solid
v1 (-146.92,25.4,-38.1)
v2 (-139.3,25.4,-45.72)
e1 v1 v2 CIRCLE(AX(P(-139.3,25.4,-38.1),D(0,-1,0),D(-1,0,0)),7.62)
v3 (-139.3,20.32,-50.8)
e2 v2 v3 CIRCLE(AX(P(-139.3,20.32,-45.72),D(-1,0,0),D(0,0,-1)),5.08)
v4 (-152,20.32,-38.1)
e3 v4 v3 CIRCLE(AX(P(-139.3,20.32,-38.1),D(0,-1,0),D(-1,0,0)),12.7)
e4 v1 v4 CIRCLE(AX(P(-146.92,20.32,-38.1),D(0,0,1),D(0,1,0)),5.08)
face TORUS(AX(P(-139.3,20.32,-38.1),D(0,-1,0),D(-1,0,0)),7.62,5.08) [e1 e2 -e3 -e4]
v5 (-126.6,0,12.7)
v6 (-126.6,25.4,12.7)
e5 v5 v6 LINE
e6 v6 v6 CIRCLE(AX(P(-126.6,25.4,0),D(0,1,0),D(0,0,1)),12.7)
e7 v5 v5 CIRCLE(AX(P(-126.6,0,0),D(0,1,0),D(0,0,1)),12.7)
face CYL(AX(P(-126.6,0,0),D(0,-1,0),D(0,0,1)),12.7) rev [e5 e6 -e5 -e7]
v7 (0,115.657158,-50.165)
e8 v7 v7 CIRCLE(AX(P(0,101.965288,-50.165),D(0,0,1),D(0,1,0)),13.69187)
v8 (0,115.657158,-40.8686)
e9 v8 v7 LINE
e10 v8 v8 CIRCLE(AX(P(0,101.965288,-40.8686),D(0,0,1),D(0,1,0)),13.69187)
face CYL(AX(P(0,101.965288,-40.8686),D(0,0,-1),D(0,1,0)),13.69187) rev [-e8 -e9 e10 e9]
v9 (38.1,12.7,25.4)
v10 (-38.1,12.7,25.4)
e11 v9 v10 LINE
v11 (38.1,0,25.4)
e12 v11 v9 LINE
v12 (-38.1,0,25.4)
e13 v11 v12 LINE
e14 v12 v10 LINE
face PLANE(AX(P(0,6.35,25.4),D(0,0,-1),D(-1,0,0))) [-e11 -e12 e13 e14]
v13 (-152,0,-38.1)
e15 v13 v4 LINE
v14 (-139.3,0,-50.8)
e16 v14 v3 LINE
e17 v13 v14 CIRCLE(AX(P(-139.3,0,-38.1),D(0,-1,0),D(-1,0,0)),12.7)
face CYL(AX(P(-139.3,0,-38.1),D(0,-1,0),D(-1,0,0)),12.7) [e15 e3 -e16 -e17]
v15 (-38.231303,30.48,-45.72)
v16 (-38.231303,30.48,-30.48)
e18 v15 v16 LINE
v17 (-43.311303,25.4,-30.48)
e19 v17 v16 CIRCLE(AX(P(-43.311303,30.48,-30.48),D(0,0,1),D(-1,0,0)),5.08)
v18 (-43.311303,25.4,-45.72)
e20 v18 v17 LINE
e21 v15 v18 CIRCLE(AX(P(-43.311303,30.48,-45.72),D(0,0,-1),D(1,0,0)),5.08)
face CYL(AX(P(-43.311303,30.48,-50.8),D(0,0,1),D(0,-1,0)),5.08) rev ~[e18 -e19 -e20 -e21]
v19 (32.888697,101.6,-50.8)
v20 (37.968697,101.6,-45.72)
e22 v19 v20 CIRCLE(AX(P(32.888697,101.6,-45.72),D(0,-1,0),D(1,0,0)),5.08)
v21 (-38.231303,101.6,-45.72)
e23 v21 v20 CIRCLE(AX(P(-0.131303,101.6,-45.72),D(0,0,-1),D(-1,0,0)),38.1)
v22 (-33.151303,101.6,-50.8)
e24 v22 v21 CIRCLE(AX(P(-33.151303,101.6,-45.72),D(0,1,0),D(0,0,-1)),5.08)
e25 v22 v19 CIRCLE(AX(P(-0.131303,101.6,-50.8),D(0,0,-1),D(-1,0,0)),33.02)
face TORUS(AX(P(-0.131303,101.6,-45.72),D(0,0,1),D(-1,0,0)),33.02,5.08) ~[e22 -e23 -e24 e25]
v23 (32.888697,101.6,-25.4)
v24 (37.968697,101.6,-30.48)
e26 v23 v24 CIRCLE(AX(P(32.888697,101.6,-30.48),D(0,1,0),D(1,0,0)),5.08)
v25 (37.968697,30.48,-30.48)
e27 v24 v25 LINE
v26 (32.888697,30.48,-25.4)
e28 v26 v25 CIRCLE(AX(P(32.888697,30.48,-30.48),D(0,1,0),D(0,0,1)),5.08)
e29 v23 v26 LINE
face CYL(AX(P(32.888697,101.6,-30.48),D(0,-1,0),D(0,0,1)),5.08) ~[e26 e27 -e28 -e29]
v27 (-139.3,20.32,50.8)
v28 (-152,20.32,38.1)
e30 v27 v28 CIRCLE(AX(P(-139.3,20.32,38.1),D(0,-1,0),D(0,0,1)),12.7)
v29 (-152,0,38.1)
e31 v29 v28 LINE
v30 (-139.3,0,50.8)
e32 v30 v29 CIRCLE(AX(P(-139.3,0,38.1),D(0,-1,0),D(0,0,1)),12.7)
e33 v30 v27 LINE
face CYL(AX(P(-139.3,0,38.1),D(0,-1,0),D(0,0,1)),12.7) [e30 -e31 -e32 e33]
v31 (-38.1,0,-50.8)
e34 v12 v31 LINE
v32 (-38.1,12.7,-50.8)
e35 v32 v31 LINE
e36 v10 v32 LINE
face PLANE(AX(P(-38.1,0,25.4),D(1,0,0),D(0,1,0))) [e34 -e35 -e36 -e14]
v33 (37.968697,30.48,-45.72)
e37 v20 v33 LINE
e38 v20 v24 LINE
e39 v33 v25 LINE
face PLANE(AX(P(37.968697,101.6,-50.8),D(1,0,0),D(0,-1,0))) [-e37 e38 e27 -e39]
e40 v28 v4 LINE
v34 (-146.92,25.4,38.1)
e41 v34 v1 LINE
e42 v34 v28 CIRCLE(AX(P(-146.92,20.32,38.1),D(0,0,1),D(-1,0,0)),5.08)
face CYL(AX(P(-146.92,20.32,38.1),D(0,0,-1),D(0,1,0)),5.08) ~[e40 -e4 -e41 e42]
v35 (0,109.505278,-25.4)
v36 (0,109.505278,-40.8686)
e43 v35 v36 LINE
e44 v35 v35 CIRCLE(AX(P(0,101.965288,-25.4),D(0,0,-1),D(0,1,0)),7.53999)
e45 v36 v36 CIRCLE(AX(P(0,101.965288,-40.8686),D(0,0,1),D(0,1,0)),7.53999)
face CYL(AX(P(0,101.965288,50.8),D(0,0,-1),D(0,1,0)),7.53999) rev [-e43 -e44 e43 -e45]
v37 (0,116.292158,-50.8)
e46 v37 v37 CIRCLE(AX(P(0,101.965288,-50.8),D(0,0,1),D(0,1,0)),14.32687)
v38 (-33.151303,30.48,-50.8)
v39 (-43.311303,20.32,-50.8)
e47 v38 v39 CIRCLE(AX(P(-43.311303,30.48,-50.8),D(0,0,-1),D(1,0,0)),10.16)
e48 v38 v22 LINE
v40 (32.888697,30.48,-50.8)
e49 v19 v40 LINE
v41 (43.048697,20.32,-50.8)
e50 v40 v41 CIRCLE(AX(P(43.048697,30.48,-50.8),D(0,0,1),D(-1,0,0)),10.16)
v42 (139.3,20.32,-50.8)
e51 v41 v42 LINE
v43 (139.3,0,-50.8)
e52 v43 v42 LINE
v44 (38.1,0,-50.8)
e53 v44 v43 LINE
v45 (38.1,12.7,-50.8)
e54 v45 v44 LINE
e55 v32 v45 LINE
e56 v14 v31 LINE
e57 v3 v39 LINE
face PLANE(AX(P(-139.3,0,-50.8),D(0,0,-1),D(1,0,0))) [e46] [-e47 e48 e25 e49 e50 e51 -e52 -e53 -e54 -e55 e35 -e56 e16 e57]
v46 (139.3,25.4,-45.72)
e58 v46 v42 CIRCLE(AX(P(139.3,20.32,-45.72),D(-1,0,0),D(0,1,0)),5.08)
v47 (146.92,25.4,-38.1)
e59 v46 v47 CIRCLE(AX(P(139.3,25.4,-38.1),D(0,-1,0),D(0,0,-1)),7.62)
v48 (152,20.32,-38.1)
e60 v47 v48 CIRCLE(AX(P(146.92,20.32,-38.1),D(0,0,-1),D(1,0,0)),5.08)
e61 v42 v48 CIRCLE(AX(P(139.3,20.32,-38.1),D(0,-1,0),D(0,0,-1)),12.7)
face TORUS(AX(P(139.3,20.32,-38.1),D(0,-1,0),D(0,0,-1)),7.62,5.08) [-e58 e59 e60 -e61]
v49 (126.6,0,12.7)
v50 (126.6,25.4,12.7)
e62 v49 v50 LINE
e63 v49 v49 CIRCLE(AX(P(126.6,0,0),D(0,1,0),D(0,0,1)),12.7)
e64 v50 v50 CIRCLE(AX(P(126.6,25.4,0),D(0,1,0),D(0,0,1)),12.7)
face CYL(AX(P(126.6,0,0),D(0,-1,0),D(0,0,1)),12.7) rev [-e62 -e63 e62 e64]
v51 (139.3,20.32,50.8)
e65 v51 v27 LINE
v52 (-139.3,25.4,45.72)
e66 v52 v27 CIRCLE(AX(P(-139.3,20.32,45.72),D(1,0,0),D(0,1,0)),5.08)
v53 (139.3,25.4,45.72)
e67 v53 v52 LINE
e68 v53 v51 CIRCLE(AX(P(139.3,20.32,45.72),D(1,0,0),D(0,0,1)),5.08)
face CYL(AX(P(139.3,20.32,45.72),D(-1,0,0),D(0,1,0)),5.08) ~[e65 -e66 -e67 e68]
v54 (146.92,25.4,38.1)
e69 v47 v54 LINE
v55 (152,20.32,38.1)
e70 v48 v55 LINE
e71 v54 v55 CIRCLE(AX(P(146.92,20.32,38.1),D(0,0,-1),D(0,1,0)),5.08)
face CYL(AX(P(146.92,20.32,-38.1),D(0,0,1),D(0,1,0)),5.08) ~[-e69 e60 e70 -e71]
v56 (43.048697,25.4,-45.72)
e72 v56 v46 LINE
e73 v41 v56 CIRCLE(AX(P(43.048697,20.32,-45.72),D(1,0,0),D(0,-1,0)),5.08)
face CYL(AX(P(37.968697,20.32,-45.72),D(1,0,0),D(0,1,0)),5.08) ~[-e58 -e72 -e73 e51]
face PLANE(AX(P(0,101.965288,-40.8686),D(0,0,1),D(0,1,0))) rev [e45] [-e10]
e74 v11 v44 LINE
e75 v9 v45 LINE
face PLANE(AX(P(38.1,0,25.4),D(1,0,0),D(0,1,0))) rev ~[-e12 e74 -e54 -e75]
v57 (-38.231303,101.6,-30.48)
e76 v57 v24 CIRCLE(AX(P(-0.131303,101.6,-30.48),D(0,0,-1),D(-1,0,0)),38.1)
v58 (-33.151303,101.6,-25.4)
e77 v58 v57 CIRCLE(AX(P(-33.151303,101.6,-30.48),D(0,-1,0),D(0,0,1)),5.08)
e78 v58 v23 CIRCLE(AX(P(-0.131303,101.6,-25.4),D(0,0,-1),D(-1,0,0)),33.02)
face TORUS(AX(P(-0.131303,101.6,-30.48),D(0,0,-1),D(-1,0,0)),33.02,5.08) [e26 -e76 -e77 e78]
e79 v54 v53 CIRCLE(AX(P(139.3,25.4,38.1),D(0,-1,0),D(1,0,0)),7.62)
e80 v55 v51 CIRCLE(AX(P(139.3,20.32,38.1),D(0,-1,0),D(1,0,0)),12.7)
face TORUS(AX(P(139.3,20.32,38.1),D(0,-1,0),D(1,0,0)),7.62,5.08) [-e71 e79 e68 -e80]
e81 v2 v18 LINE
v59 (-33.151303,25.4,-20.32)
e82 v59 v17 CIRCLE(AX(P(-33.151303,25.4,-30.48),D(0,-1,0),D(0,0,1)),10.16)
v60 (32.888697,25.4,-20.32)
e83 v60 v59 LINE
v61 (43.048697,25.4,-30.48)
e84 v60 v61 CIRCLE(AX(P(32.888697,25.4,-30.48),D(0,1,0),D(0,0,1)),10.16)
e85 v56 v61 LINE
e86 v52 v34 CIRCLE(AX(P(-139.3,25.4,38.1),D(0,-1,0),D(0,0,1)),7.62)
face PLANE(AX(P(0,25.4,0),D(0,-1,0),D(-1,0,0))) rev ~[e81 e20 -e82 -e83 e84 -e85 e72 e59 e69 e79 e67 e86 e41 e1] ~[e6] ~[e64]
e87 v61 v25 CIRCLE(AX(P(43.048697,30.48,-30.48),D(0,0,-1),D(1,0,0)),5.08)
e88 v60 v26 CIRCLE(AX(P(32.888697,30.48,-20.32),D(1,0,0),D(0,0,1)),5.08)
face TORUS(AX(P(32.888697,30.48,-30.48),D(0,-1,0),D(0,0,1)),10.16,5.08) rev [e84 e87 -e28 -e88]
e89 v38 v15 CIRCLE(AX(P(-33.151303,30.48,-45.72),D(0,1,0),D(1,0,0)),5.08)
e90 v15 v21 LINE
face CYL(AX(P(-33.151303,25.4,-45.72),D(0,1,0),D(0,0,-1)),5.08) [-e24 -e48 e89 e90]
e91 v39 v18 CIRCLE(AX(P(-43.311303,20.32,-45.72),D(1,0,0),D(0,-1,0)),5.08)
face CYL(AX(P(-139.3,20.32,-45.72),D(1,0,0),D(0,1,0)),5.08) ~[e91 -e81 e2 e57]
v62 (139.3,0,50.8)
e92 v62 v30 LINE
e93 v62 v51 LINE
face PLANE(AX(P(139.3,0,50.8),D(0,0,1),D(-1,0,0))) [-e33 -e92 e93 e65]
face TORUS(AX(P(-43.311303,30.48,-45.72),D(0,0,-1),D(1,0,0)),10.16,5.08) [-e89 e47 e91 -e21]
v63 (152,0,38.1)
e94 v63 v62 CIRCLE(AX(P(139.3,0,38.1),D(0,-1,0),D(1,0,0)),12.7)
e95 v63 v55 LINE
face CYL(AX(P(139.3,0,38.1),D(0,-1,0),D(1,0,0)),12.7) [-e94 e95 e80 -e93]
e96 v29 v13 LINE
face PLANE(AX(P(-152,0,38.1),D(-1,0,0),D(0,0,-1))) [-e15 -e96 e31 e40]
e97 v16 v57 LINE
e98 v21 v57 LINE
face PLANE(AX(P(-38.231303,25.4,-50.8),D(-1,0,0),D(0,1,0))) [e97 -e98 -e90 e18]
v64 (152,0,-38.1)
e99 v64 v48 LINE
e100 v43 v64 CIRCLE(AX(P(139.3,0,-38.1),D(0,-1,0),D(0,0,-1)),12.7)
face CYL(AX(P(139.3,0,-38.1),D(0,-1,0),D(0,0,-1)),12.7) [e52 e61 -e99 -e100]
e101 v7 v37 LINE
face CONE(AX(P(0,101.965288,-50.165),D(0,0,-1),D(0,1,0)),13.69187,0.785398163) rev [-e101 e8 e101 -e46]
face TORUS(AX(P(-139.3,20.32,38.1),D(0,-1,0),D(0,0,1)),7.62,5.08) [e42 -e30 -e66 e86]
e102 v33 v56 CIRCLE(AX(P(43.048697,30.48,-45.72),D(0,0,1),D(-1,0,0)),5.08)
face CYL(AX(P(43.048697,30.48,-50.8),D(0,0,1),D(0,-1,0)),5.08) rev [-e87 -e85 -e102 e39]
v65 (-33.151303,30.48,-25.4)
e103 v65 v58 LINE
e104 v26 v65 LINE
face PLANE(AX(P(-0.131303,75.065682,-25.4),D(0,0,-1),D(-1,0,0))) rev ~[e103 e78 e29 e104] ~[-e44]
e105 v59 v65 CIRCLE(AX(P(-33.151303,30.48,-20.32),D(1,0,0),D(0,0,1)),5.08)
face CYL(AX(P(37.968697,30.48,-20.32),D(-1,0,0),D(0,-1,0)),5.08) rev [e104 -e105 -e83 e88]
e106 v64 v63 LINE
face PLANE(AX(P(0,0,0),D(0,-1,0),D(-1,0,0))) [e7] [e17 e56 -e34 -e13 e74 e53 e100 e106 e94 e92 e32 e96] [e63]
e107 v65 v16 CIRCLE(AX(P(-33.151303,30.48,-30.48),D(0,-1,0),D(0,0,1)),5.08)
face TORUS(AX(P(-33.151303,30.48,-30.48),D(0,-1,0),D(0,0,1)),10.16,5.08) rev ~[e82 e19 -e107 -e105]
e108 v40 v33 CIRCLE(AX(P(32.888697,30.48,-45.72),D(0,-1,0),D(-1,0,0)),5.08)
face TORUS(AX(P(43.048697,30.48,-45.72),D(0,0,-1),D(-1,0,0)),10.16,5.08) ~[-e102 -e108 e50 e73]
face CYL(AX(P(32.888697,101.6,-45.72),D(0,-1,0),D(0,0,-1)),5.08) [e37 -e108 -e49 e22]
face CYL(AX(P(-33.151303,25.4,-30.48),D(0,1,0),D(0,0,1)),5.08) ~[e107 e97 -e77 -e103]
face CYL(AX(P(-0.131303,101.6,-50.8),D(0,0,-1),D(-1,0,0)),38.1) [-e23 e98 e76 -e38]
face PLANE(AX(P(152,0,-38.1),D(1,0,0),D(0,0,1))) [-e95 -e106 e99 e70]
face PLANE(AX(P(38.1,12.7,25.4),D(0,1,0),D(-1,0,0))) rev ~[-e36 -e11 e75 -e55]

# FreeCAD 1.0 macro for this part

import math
import FreeCAD as App
import Part
import Sketcher
from FreeCAD import Vector
Q = App.Units.Quantity


def edges_at(feature, points):
    """Names of the edges that pass closest to the given points."""
    edges = feature.Shape.Edges
    near = lambda p: min(range(len(edges)), key=lambda i: edges[i].distToShape(Part.Vertex(*p))[0])
    return sorted({f"Edge{near(p) + 1}" for p in points})

doc = App.newDocument("Part")
params = doc.addObject("Spreadsheet::Sheet", "Params")
for row, (alias, value) in enumerate([
    ("sketch1_diameter", "1 in"),
    ("sketch1_height", "3 in"),
    ("pad1_length", "1 in"),
    ("sketch2_width", "3 in"),
    ("sketch2_height", "0.5 in"),
    ("pocket1_length", "185.585265 mm"),
    ("pocket1_length2", "3 in"),
    ("sketch3_radius", "1.5 in"),
    ("pad2_length", "1 in"),
    ("sketch4_height", "4 in"),
    ("sketch4_height2", "0.366 in"),
    ("sketch4_height3", "3.609 in"),
    ("groove_angle", "360 deg"),
    ("fillet_radius", "0.2 in"),
], start=1):
    params.set(f"A{row}", alias)
    params.set(f"B{row}", "=" + value)
    params.setAlias(f"B{row}", alias)

body = doc.addObject("PartDesign::Body", "Body")

# Sketch on XZ plane
sketch1 = body.newObject("Sketcher::SketchObject", "Sketch")
sketch1.AttachmentSupport = (doc.getObject("XZ_Plane"), [""])
sketch1.MapMode = "FlatFace"
sketch1.addGeometry(Part.LineSegment(Vector(-139.3, 50.8, 0), Vector(139.3, 50.8, 0)), False)
sketch1.addGeometry(Part.ArcOfCircle(Part.Circle(Vector(139.3, 38.1, 0), Vector(0, 0, 1), 12.7), math.radians(0), math.radians(90)), False)
sketch1.addGeometry(Part.LineSegment(Vector(152, 38.1, 0), Vector(152, -38.1, 0)), False)
sketch1.addGeometry(Part.ArcOfCircle(Part.Circle(Vector(139.3, -38.1, 0), Vector(0, 0, 1), 12.7), math.radians(-90), math.radians(0)), False)
sketch1.addGeometry(Part.LineSegment(Vector(139.3, -50.8, 0), Vector(-139.3, -50.8, 0)), False)
sketch1.addGeometry(Part.ArcOfCircle(Part.Circle(Vector(-139.3, -38.1, 0), Vector(0, 0, 1), 12.7), math.radians(180), math.radians(270)), False)
sketch1.addGeometry(Part.LineSegment(Vector(-152, -38.1, 0), Vector(-152, 38.1, 0)), False)
sketch1.addGeometry(Part.ArcOfCircle(Part.Circle(Vector(-139.3, 38.1, 0), Vector(0, 0, 1), 12.7), math.radians(90), math.radians(180)), False)
sketch1.addGeometry(Part.Circle(Vector(126.6, 0, 0), Vector(0, 0, 1), 12.7), False)
sketch1.addGeometry(Part.Circle(Vector(-126.6, 0, 0), Vector(0, 0, 1), 12.7), False)
sketch1.addConstraint(Sketcher.Constraint("Tangent", 0, 2, 1, 2))
sketch1.addConstraint(Sketcher.Constraint("Tangent", 1, 1, 2, 1))
sketch1.addConstraint(Sketcher.Constraint("Tangent", 2, 2, 3, 2))
sketch1.addConstraint(Sketcher.Constraint("Tangent", 3, 1, 4, 1))
sketch1.addConstraint(Sketcher.Constraint("Tangent", 4, 2, 5, 2))
sketch1.addConstraint(Sketcher.Constraint("Tangent", 5, 1, 6, 1))
sketch1.addConstraint(Sketcher.Constraint("Tangent", 6, 2, 7, 2))
sketch1.addConstraint(Sketcher.Constraint("Tangent", 7, 1, 0, 1))
sketch1.addConstraint(Sketcher.Constraint("Horizontal", 0))
sketch1.addConstraint(Sketcher.Constraint("Vertical", 2))
sketch1.addConstraint(Sketcher.Constraint("Horizontal", 4))
sketch1.addConstraint(Sketcher.Constraint("Vertical", 6))
sketch1.addConstraint(Sketcher.Constraint("Equal", 1, 3))
sketch1.addConstraint(Sketcher.Constraint("Equal", 3, 5))
sketch1.addConstraint(Sketcher.Constraint("Equal", 5, 7))
sketch1.addConstraint(Sketcher.Constraint("Equal", 7, 8))
sketch1.addConstraint(Sketcher.Constraint("Equal", 8, 9))
sketch1.addConstraint(Sketcher.Constraint("Symmetric", 1, 3, 5, 3, -1, 1))
sketch1.addConstraint(Sketcher.Constraint("Symmetric", 8, 3, 9, 3, -1, 1))
sketch1.addConstraint(Sketcher.Constraint("PointOnObject", 8, 3, -1))
sketch1.addConstraint(Sketcher.Constraint("Diameter", 8, Q("1 in")))
sketch1.addConstraint(Sketcher.Constraint("DistanceY", 2, 2, 2, 1, Q("3 in")))
sketch1.addConstraint(Sketcher.Constraint("DistanceX", 8, 3, 1, 1, Q("1 in")))
sketch1.addConstraint(Sketcher.Constraint("DistanceX", 0, 1, 0, 2, Q("278.6 mm")))
sketch1.setExpression("Constraints[20]", "Params.sketch1_diameter")
sketch1.setExpression("Constraints[21]", "Params.sketch1_height")
pad1 = body.newObject("PartDesign::Pad", "Pad")
pad1.Profile = sketch1
pad1.setExpression("Length", "Params.pad1_length")
pad1.Reversed = True

# Sketch on XY plane
sketch2 = body.newObject("Sketcher::SketchObject", "Sketch001")
sketch2.AttachmentSupport = (doc.getObject("XY_Plane"), [""])
sketch2.MapMode = "FlatFace"
sketch2.AttachmentOffset = App.Placement(Vector(0, 0, -2 * 25.4), App.Rotation())
sketch2.addGeometry(Part.LineSegment(Vector(38.1, 12.7, 0), Vector(38.1, 0, 0)), False)
sketch2.addGeometry(Part.LineSegment(Vector(38.1, 0, 0), Vector(-38.1, 0, 0)), False)
sketch2.addGeometry(Part.LineSegment(Vector(-38.1, 0, 0), Vector(-38.1, 12.7, 0)), False)
sketch2.addGeometry(Part.LineSegment(Vector(-38.1, 12.7, 0), Vector(38.1, 12.7, 0)), False)
sketch2.addConstraint(Sketcher.Constraint("Coincident", 0, 2, 1, 1))
sketch2.addConstraint(Sketcher.Constraint("Coincident", 1, 2, 2, 1))
sketch2.addConstraint(Sketcher.Constraint("Coincident", 2, 2, 3, 1))
sketch2.addConstraint(Sketcher.Constraint("Coincident", 3, 2, 0, 1))
sketch2.addConstraint(Sketcher.Constraint("Vertical", 0))
sketch2.addConstraint(Sketcher.Constraint("Horizontal", 1))
sketch2.addConstraint(Sketcher.Constraint("Vertical", 2))
sketch2.addConstraint(Sketcher.Constraint("Horizontal", 3))
sketch2.addConstraint(Sketcher.Constraint("Symmetric", 0, 2, 1, 2, -1, 1))
sketch2.addConstraint(Sketcher.Constraint("DistanceX", 1, 2, 1, 1, Q("3 in")))
sketch2.addConstraint(Sketcher.Constraint("DistanceY", 0, 2, 0, 1, Q("0.5 in")))
sketch2.setExpression("Constraints[9]", "Params.sketch2_width")
sketch2.setExpression("Constraints[10]", "Params.sketch2_height")
pocket1 = body.newObject("PartDesign::Pocket", "Pocket")
pocket1.Profile = sketch2
pocket1.Type = "TwoLengths"
pocket1.setExpression("Length", "Params.pocket1_length")
pocket1.setExpression("Length2", "Params.pocket1_length2")

# Sketch on XY plane
sketch3 = body.newObject("Sketcher::SketchObject", "Sketch002")
sketch3.AttachmentSupport = (doc.getObject("XY_Plane"), [""])
sketch3.MapMode = "FlatFace"
sketch3.AttachmentOffset = App.Placement(Vector(0, 0, -2 * 25.4), App.Rotation())
sketch3.addGeometry(Part.LineSegment(Vector(37.968697, 101.6, 0), Vector(37.968697, 25.4, 0)), False)
sketch3.addGeometry(Part.LineSegment(Vector(37.968697, 25.4, 0), Vector(-38.231303, 25.4, 0)), False)
sketch3.addGeometry(Part.LineSegment(Vector(-38.231303, 25.4, 0), Vector(-38.231303, 101.6, 0)), False)
sketch3.addGeometry(Part.ArcOfCircle(Part.Circle(Vector(-0.131303, 101.6, 0), Vector(0, 0, 1), 38.1), math.radians(0), math.radians(180)), False)
sketch3.addConstraint(Sketcher.Constraint("Coincident", 0, 2, 1, 1))
sketch3.addConstraint(Sketcher.Constraint("Coincident", 1, 2, 2, 1))
sketch3.addConstraint(Sketcher.Constraint("Tangent", 2, 2, 3, 2))
sketch3.addConstraint(Sketcher.Constraint("Tangent", 3, 1, 0, 1))
sketch3.addConstraint(Sketcher.Constraint("Vertical", 0))
sketch3.addConstraint(Sketcher.Constraint("Horizontal", 1))
sketch3.addConstraint(Sketcher.Constraint("Vertical", 2))
sketch3.addConstraint(Sketcher.Constraint("Equal", 1, 0))
sketch3.addConstraint(Sketcher.Constraint("Radius", 3, Q("1.5 in")))
sketch3.addConstraint(Sketcher.Constraint("DistanceY", -1, 1, 3, 3, Q("4 in")))
sketch3.addConstraint(Sketcher.Constraint("DistanceX", 3, 3, -1, 1, Q("0.131303 mm")))
sketch3.setExpression("Constraints[8]", "Params.sketch3_radius")
pad2 = body.newObject("PartDesign::Pad", "Pad001")
pad2.Profile = sketch3
pad2.setExpression("Length", "Params.pad2_length")

# Sketch on YZ plane
sketch4 = body.newObject("Sketcher::SketchObject", "Sketch003")
sketch4.AttachmentSupport = (doc.getObject("YZ_Plane"), [""])
sketch4.MapMode = "FlatFace"
sketch4.addGeometry(Part.LineSegment(Vector(101.965288, 50.8, 0), Vector(101.965288, -50.8, 0)), False)
sketch4.addGeometry(Part.LineSegment(Vector(101.965288, -50.8, 0), Vector(116.292158, -50.8, 0)), False)
sketch4.addGeometry(Part.LineSegment(Vector(116.292158, -50.8, 0), Vector(115.657158, -50.165, 0)), False)
sketch4.addGeometry(Part.LineSegment(Vector(115.657158, -50.165, 0), Vector(115.657158, -40.8686, 0)), False)
sketch4.addGeometry(Part.LineSegment(Vector(115.657158, -40.8686, 0), Vector(109.505278, -40.8686, 0)), False)
sketch4.addGeometry(Part.LineSegment(Vector(109.505278, -40.8686, 0), Vector(109.505278, 50.8, 0)), False)
sketch4.addGeometry(Part.LineSegment(Vector(109.505278, 50.8, 0), Vector(101.965288, 50.8, 0)), False)
sketch4.addGeometry(Part.LineSegment(Vector(101.965288, -50.8, 0), Vector(101.965288, 50.8, 0)), True)  # axis
sketch4.addConstraint(Sketcher.Constraint("Coincident", 0, 2, 1, 1))
sketch4.addConstraint(Sketcher.Constraint("Coincident", 1, 2, 2, 1))
sketch4.addConstraint(Sketcher.Constraint("Coincident", 2, 2, 3, 1))
sketch4.addConstraint(Sketcher.Constraint("Coincident", 3, 2, 4, 1))
sketch4.addConstraint(Sketcher.Constraint("Coincident", 4, 2, 5, 1))
sketch4.addConstraint(Sketcher.Constraint("Coincident", 5, 2, 6, 1))
sketch4.addConstraint(Sketcher.Constraint("Coincident", 6, 2, 0, 1))
sketch4.addConstraint(Sketcher.Constraint("Vertical", 0))
sketch4.addConstraint(Sketcher.Constraint("Horizontal", 1))
sketch4.addConstraint(Sketcher.Constraint("Vertical", 3))
sketch4.addConstraint(Sketcher.Constraint("Horizontal", 4))
sketch4.addConstraint(Sketcher.Constraint("Vertical", 5))
sketch4.addConstraint(Sketcher.Constraint("Horizontal", 6))
sketch4.addConstraint(Sketcher.Constraint("Vertical", 7))
sketch4.addConstraint(Sketcher.Constraint("Coincident", 7, 1, 0, 2))
sketch4.addConstraint(Sketcher.Constraint("Horizontal", 5, 2, 7, 2))
sketch4.addConstraint(Sketcher.Constraint("DistanceY", 0, 2, 0, 1, Q("4 in")))
sketch4.addConstraint(Sketcher.Constraint("DistanceY", 0, 2, -1, 1, Q("2 in")))
sketch4.addConstraint(Sketcher.Constraint("Angle", 2, Q("135 deg")))
sketch4.addConstraint(Sketcher.Constraint("DistanceY", 3, 1, 3, 2, Q("0.366 in")))
sketch4.addConstraint(Sketcher.Constraint("DistanceY", 5, 1, 5, 2, Q("3.609 in")))
sketch4.addConstraint(Sketcher.Constraint("DistanceX", 4, 2, 4, 1, Q("0.2422 in")))
sketch4.addConstraint(Sketcher.Constraint("DistanceX", 1, 1, 1, 2, Q("14.32687 mm")))
sketch4.addConstraint(Sketcher.Constraint("DistanceX", -1, 1, 0, 2, Q("101.965288 mm")))
sketch4.setExpression("Constraints[16]", "Params.sketch4_height")
sketch4.setExpression("Constraints[19]", "Params.sketch4_height2")
sketch4.setExpression("Constraints[20]", "Params.sketch4_height3")
groove = body.newObject("PartDesign::Groove", "Groove")
groove.Profile = sketch4
groove.ReferenceAxis = (sketch4, ["Axis0"])
groove.setExpression("Angle", "Params.groove_angle")
doc.recompute()

fillet = body.newObject("PartDesign::Fillet", "Fillet")
fillet.Base = (groove, edges_at(groove, [
    (148.28, 25.4, -47.08),
    (88.634, 25.4, -50.8),
    (-148.28, 25.4, -47.08),
    (-152, 25.4, 0),
    (-148.28, 25.4, 47.08),
    (0, 25.4, 50.8),
    (-88.766, 25.4, -50.8),
    (-38.231, 63.5, -25.4),
    (-0.131, 25.4, -25.4),
    (-38.231, 25.4, -38.1),
    (37.969, 63.5, -25.4),
    (37.969, 25.4, -38.1),
    (-0.131, 139.7, -25.4),
    (-38.231, 63.5, -50.8),
    (-0.131, 139.7, -50.8),
    (37.969, 63.5, -50.8),
    (148.28, 25.4, 47.08),
    (152, 25.4, 0),
]))
fillet.setExpression("Radius", "Params.fillet_radius")

doc.recompute()
